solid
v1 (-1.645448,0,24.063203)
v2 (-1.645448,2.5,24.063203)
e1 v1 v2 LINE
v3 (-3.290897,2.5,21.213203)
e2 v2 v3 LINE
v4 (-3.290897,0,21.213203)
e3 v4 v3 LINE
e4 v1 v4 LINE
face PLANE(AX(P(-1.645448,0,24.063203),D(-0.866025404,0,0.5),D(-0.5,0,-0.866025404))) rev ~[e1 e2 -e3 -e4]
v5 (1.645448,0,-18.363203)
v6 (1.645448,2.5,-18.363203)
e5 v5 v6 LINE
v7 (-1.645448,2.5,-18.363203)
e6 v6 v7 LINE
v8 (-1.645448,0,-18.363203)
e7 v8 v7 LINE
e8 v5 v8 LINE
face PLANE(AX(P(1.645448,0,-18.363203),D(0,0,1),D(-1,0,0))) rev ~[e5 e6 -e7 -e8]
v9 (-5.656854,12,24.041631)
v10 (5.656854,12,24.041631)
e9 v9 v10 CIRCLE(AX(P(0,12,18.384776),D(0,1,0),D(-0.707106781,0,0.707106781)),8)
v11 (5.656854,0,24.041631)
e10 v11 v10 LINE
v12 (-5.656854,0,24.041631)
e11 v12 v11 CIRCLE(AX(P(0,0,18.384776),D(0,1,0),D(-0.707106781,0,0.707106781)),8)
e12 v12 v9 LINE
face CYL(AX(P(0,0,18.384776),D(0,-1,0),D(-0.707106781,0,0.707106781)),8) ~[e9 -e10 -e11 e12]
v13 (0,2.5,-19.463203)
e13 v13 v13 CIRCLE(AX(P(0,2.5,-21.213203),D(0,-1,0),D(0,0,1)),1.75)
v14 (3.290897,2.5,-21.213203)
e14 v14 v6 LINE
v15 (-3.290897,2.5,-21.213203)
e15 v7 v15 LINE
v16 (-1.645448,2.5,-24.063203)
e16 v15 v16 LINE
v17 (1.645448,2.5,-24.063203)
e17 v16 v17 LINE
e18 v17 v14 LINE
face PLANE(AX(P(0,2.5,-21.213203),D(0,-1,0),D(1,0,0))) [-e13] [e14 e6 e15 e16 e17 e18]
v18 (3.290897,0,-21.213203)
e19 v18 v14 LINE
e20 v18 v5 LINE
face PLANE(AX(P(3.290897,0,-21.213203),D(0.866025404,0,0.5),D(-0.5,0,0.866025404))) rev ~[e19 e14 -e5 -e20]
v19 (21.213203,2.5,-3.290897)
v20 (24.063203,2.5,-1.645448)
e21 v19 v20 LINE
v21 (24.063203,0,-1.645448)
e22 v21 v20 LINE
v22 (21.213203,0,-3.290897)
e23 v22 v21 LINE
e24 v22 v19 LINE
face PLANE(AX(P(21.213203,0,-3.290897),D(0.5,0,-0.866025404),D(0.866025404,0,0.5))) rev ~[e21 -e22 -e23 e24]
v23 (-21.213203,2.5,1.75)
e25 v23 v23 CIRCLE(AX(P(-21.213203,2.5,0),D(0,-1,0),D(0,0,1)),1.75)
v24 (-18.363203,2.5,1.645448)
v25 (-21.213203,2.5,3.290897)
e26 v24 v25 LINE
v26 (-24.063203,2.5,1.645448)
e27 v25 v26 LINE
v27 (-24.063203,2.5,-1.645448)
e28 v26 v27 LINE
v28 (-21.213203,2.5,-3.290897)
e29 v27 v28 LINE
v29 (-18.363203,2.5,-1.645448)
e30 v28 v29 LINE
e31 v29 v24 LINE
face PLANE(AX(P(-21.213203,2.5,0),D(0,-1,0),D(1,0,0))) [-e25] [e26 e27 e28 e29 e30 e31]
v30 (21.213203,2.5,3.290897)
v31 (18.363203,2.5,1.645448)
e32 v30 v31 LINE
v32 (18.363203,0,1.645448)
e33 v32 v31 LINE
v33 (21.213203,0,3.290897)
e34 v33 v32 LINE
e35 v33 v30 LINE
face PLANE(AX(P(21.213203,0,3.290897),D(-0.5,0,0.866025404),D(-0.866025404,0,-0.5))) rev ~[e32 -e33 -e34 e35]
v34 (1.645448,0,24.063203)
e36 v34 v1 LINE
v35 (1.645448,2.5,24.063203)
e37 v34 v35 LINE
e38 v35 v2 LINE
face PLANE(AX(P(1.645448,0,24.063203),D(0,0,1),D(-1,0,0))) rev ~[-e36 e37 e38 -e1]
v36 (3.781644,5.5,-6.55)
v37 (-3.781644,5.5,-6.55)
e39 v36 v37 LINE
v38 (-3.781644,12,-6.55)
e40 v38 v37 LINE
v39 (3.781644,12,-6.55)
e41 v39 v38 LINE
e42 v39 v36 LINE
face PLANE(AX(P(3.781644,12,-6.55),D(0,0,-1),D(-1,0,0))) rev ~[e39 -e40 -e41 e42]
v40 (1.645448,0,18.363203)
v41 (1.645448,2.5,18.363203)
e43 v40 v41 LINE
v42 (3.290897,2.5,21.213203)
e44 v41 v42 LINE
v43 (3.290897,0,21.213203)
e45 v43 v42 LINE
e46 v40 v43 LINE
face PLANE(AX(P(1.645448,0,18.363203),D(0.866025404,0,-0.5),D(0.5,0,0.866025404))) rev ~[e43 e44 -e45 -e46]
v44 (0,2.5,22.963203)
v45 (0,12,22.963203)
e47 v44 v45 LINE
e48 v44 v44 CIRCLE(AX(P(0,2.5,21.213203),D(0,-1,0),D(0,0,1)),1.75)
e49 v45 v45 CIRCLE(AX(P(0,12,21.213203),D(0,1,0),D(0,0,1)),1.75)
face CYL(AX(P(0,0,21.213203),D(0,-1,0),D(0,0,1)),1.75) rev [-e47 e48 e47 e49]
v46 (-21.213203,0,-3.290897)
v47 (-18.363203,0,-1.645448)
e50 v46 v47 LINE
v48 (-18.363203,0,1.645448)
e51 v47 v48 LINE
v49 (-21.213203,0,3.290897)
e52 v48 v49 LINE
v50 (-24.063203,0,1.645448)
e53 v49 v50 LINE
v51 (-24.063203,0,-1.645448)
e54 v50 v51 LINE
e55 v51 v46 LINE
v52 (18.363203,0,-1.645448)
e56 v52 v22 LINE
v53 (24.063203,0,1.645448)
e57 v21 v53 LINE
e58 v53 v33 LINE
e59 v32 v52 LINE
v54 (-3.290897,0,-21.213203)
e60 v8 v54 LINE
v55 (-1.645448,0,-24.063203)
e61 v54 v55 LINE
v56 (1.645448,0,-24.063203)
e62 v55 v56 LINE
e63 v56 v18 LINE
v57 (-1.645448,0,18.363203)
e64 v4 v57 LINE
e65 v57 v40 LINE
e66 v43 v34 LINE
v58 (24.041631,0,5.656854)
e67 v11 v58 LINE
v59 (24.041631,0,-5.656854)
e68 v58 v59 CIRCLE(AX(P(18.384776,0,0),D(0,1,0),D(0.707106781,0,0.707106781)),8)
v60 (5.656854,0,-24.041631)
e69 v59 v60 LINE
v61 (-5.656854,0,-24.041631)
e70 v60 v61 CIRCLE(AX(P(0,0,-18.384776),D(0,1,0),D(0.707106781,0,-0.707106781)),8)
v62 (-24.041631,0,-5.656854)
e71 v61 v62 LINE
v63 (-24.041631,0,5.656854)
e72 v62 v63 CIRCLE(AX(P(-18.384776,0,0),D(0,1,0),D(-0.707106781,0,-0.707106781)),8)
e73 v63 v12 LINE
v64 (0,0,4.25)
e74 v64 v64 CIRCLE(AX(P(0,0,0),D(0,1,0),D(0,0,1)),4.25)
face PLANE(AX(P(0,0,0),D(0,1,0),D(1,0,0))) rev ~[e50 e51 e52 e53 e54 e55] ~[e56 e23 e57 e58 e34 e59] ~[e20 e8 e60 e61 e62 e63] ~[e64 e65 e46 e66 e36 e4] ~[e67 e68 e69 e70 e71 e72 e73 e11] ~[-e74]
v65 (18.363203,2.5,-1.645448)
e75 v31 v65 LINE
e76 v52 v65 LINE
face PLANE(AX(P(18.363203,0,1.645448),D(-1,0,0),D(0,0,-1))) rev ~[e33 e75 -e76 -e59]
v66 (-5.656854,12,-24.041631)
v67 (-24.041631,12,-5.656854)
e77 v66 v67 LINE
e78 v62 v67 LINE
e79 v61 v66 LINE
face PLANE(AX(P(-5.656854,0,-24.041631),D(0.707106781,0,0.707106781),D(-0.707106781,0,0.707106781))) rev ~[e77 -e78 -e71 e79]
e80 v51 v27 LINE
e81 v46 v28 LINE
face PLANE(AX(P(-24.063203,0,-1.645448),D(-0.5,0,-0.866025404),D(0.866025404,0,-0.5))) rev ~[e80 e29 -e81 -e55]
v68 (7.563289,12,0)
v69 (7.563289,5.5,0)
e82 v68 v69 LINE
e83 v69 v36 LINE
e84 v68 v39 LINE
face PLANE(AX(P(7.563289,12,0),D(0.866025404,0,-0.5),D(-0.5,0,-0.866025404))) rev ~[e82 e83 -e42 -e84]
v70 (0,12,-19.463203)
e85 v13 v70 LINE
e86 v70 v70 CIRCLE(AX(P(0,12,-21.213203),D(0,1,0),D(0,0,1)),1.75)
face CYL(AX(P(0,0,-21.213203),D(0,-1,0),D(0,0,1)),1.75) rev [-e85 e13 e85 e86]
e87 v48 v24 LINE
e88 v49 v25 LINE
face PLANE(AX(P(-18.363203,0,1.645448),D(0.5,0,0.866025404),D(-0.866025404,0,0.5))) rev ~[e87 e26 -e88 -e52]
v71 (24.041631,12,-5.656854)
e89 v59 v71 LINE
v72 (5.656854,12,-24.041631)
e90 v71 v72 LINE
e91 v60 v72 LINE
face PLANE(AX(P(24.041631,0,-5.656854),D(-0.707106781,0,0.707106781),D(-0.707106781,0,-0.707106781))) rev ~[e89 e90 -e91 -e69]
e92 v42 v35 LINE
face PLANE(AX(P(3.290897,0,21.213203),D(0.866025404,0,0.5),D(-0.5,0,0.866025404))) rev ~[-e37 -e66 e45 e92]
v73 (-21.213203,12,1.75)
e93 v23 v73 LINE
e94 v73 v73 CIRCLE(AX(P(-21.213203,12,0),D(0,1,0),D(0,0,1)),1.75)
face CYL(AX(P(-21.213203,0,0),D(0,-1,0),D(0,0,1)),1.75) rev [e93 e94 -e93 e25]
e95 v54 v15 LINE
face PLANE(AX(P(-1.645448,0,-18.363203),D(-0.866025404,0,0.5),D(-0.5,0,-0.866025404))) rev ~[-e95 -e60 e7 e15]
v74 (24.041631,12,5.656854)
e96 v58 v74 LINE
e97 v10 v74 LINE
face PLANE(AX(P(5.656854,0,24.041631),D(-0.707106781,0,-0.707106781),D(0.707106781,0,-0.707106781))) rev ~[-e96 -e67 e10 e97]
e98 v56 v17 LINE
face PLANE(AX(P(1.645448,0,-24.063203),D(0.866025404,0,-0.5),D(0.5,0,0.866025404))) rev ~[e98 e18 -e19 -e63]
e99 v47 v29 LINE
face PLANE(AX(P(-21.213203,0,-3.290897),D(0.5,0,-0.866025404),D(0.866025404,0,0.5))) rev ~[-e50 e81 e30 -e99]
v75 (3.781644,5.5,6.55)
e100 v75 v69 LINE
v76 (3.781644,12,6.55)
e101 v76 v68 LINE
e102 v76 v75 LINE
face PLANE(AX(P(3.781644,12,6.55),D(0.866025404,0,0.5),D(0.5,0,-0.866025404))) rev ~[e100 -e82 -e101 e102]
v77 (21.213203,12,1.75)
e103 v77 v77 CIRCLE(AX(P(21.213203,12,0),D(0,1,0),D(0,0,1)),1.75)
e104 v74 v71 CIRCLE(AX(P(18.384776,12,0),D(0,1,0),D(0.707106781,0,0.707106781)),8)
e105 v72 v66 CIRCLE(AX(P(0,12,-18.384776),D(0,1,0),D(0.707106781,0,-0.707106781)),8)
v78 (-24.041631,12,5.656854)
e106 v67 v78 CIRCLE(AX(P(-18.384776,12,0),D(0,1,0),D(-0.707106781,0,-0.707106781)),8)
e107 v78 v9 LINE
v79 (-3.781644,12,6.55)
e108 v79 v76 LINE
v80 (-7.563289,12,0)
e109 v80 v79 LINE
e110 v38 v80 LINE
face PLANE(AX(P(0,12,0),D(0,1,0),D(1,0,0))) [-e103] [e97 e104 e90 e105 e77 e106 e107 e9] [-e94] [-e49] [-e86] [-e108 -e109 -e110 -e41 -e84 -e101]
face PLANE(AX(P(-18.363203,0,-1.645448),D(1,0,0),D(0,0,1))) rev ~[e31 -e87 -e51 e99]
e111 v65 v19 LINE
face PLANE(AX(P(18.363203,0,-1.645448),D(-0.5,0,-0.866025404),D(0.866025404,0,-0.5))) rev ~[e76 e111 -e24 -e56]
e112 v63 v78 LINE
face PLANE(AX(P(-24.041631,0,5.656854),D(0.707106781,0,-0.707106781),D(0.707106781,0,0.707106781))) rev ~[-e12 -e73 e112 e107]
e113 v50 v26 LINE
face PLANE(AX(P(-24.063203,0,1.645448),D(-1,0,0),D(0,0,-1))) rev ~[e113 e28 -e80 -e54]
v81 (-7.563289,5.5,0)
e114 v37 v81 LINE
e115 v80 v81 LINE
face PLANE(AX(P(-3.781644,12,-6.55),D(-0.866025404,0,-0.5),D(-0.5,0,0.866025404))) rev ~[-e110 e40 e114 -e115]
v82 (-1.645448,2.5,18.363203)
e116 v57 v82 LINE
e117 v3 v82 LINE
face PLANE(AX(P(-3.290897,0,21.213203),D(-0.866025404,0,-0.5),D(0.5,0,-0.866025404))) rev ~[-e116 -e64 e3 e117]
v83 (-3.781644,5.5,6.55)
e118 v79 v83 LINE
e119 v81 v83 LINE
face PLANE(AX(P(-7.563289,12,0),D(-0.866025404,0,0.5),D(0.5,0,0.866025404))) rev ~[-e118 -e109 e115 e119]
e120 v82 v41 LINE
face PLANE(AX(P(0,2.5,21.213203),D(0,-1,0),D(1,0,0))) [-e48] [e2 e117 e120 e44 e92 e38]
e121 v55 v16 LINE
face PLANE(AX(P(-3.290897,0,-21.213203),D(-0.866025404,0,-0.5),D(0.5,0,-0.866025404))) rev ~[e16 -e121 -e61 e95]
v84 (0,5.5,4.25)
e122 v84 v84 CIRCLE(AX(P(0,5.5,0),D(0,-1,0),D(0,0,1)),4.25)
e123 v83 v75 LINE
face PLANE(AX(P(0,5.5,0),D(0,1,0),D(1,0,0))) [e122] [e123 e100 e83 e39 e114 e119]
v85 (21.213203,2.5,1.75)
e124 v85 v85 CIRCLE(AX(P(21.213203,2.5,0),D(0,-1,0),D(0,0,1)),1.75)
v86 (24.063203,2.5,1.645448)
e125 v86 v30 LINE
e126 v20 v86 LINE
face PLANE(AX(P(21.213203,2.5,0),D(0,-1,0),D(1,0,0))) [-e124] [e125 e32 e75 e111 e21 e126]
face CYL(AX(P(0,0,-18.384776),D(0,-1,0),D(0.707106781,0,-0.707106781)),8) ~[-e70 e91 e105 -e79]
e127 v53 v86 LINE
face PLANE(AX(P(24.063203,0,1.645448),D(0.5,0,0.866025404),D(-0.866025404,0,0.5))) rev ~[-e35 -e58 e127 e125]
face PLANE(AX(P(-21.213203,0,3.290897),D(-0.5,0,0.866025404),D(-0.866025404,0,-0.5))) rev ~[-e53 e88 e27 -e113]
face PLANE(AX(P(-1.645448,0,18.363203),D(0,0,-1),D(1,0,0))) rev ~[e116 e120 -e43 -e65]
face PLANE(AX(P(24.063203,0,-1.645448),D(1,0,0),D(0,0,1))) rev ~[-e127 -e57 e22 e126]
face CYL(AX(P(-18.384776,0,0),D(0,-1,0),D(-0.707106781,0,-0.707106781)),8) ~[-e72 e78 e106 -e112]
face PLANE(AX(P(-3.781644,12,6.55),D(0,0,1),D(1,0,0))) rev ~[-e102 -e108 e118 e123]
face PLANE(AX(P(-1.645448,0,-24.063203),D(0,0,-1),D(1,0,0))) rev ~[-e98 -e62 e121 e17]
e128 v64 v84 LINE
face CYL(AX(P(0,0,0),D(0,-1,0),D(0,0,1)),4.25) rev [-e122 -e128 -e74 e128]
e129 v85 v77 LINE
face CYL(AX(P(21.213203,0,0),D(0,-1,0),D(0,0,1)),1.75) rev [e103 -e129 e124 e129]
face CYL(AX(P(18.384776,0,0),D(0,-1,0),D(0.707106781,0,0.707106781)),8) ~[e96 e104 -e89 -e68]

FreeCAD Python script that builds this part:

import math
import FreeCAD as App
import Part
import Sketcher

V = App.Vector
Q = App.Units.Quantity

doc = App.newDocument("Part")
params = doc.addObject("Spreadsheet::Sheet", "Params")
for row, (alias, value) in enumerate([
    ("sketch1_radius", "8 mm"),
    ("sketch1_diameter", "3.5 mm"),
    ("sketch1_diameter2", "8.5 mm"),
    ("sketch1_length", "26 mm"),
    ("pad1_length", "12 mm"),
    ("pocket1_length", "6.5 mm"),
    ("pocket2_length", "2.5 mm"),
], start=1):
    params.set(f"A{row}", alias)
    params.set(f"B{row}", "=" + value)
    params.setAlias(f"B{row}", alias)

body = doc.addObject("PartDesign::Body", "Body")

# Sketch on XZ plane
sketch1 = doc.addObject("Sketcher::SketchObject", "Sketch")
body.addObject(sketch1)
sketch1.AttachmentSupport = (doc.XZ_Plane, [""])
sketch1.MapMode = "FlatFace"
sketch1.addGeometry([
    Part.LineSegment(V(5.7, 24, 0), V(24, 5.7, 0)),  # 0
    Part.ArcOfCircle(Part.Circle(V(18.4, 0, 0), V(0, 0, 1), 8), math.radians(-45), math.radians(45)),  # 1
    Part.LineSegment(V(24, -5.7, 0), V(5.7, -24, 0)),  # 2
    Part.ArcOfCircle(Part.Circle(V(0, -18.4, 0), V(0, 0, 1), 8), math.radians(-135), math.radians(-45)),  # 3
    Part.LineSegment(V(-5.7, -24, 0), V(-24, -5.7, 0)),  # 4
    Part.ArcOfCircle(Part.Circle(V(-18.4, 0, 0), V(0, 0, 1), 8), math.radians(135), math.radians(225)),  # 5
    Part.LineSegment(V(-24, 5.7, 0), V(-5.7, 24, 0)),  # 6
    Part.ArcOfCircle(Part.Circle(V(0, 18.4, 0), V(0, 0, 1), 8), math.radians(45), math.radians(135)),  # 7
    Part.Circle(V(0, 21.2, 0), V(0, 0, 1), 1.8),  # 8
    Part.Circle(V(-21.2, 0, 0), V(0, 0, 1), 1.8),  # 9
    Part.Circle(V(0, 0, 0), V(0, 0, 1), 4.2),  # 10
    Part.Circle(V(21.2, 0, 0), V(0, 0, 1), 1.8),  # 11
    Part.Circle(V(0, -21.2, 0), V(0, 0, 1), 1.8),  # 12
], False)
sketch1.addConstraint([
    Sketcher.Constraint("Tangent", 0, 2, 1, 2),
    Sketcher.Constraint("Tangent", 1, 1, 2, 1),
    Sketcher.Constraint("Tangent", 2, 2, 3, 2),
    Sketcher.Constraint("Tangent", 3, 1, 4, 1),
    Sketcher.Constraint("Tangent", 4, 2, 5, 2),
    Sketcher.Constraint("Tangent", 5, 1, 6, 1),
    Sketcher.Constraint("Tangent", 6, 2, 7, 2),
    Sketcher.Constraint("Tangent", 7, 1, 0, 1),
    Sketcher.Constraint("Coincident", 10, 3, -1, 1),
    Sketcher.Constraint("Equal", 1, 3),
    Sketcher.Constraint("Equal", 3, 5),
    Sketcher.Constraint("Equal", 5, 7),
    Sketcher.Constraint("Equal", 8, 9),
    Sketcher.Constraint("Equal", 9, 11),
    Sketcher.Constraint("Equal", 11, 12),
    Sketcher.Constraint("Symmetric", 1, 3, 5, 3, -1, 1),
    Sketcher.Constraint("Symmetric", 3, 3, 7, 3, -1, 1),
    Sketcher.Constraint("Symmetric", 9, 3, 11, 3, -1, 1),
    Sketcher.Constraint("Symmetric", 8, 3, 12, 3, -1, 1),
    Sketcher.Constraint("Symmetric", 2, 2, 3, 1, -2),
    Sketcher.Constraint("PointOnObject", 8, 3, -2),
    Sketcher.Constraint("PointOnObject", 9, 3, -1),
    Sketcher.Constraint("Perpendicular", 0, 2),
    Sketcher.Constraint("Radius", 1, Q("8 mm")),
    Sketcher.Constraint("Diameter", 8, Q("3.5 mm")),
    Sketcher.Constraint("Diameter", 10, Q("8.5 mm")),
    Sketcher.Constraint("Distance", 0, Q("26 mm")),
    Sketcher.Constraint("DistanceY", 3, 3, 8, 3, Q("39.59798 mm")),
    Sketcher.Constraint("DistanceX", 9, 3, 1, 3, Q("39.59798 mm")),
])
sketch1.setExpression("Constraints[23]", "Params.sketch1_radius")
sketch1.setExpression("Constraints[24]", "Params.sketch1_diameter")
sketch1.setExpression("Constraints[25]", "Params.sketch1_diameter2")
sketch1.setExpression("Constraints[26]", "Params.sketch1_length")
pad1 = doc.addObject("PartDesign::Pad", "Pad")
body.addObject(pad1)
pad1.Profile = sketch1
pad1.setExpression("Length", "Params.pad1_length")
pad1.Reversed = True

# Sketch on XZ plane
sketch2 = doc.addObject("Sketcher::SketchObject", "Sketch001")
body.addObject(sketch2)
sketch2.AttachmentSupport = (doc.XZ_Plane, [""])
sketch2.MapMode = "FlatFace"
sketch2.AttachmentOffset = App.Placement(V(0, 0, -12), App.Rotation())
sketch2.addGeometry([
    Part.LineSegment(V(4, 7, 0), V(8, 0, 0)),  # 0
    Part.LineSegment(V(8, 0, 0), V(4, -7, 0)),  # 1
    Part.LineSegment(V(4, -7, 0), V(-4, -7, 0)),  # 2
    Part.LineSegment(V(-4, -7, 0), V(-8, 0, 0)),  # 3
    Part.LineSegment(V(-8, 0, 0), V(-4, 7, 0)),  # 4
    Part.LineSegment(V(-4, 7, 0), V(4, 7, 0)),  # 5
], False)
sketch2.addConstraint([
    Sketcher.Constraint("Coincident", 0, 2, 1, 1),
    Sketcher.Constraint("Coincident", 1, 2, 2, 1),
    Sketcher.Constraint("Coincident", 2, 2, 3, 1),
    Sketcher.Constraint("Coincident", 3, 2, 4, 1),
    Sketcher.Constraint("Coincident", 4, 2, 5, 1),
    Sketcher.Constraint("Coincident", 5, 2, 0, 1),
    Sketcher.Constraint("Horizontal", 2),
    Sketcher.Constraint("Horizontal", 5),
    Sketcher.Constraint("Symmetric", 0, 2, 3, 2, -1, 1),
    Sketcher.Constraint("Symmetric", 1, 2, 4, 2, -1, 1),
    Sketcher.Constraint("PointOnObject", 0, 2, -1),
    Sketcher.Constraint("Parallel", 0, 3),
    Sketcher.Constraint("Vertical", 2, 2, 4, 2),
    Sketcher.Constraint("Angle", 0, Q("-60 deg")),
    Sketcher.Constraint("DistanceY", 2, 2, 4, 2, Q("13.1 mm")),
    Sketcher.Constraint("DistanceX", 2, 2, 2, 1, Q("7.563289 mm")),
])
pocket1 = doc.addObject("PartDesign::Pocket", "Pocket")
body.addObject(pocket1)
pocket1.Profile = sketch2
pocket1.setExpression("Length", "Params.pocket1_length")
pocket1.Reversed = True

# Sketch on XZ plane
sketch3 = doc.addObject("Sketcher::SketchObject", "Sketch002")
body.addObject(sketch3)
sketch3.AttachmentSupport = (doc.XZ_Plane, [""])
sketch3.MapMode = "FlatFace"
sketch3.addGeometry([
    Part.LineSegment(V(24.1, -1.6, 0), V(24.1, 1.6, 0)),  # 0
    Part.LineSegment(V(24.1, 1.6, 0), V(21.2, 3.3, 0)),  # 1
    Part.LineSegment(V(21.2, 3.3, 0), V(18.4, 1.6, 0)),  # 2
    Part.LineSegment(V(18.4, 1.6, 0), V(18.4, -1.6, 0)),  # 3
    Part.LineSegment(V(18.4, -1.6, 0), V(21.2, -3.3, 0)),  # 4
    Part.LineSegment(V(21.2, -3.3, 0), V(24.1, -1.6, 0)),  # 5
    Part.LineSegment(V(-1.6, 18.4, 0), V(1.6, 18.4, 0)),  # 6
    Part.LineSegment(V(1.6, 18.4, 0), V(3.3, 21.2, 0)),  # 7
    Part.LineSegment(V(3.3, 21.2, 0), V(1.6, 24.1, 0)),  # 8
    Part.LineSegment(V(1.6, 24.1, 0), V(-1.6, 24.1, 0)),  # 9
    Part.LineSegment(V(-1.6, 24.1, 0), V(-3.3, 21.2, 0)),  # 10
    Part.LineSegment(V(-3.3, 21.2, 0), V(-1.6, 18.4, 0)),  # 11
    Part.LineSegment(V(-1.6, -24.1, 0), V(1.6, -24.1, 0)),  # 12
    Part.LineSegment(V(1.6, -24.1, 0), V(3.3, -21.2, 0)),  # 13
    Part.LineSegment(V(3.3, -21.2, 0), V(1.6, -18.4, 0)),  # 14
    Part.LineSegment(V(1.6, -18.4, 0), V(-1.6, -18.4, 0)),  # 15
    Part.LineSegment(V(-1.6, -18.4, 0), V(-3.3, -21.2, 0)),  # 16
    Part.LineSegment(V(-3.3, -21.2, 0), V(-1.6, -24.1, 0)),  # 17
    Part.LineSegment(V(-24.1, 1.6, 0), V(-24.1, -1.6, 0)),  # 18
    Part.LineSegment(V(-24.1, -1.6, 0), V(-21.2, -3.3, 0)),  # 19
    Part.LineSegment(V(-21.2, -3.3, 0), V(-18.4, -1.6, 0)),  # 20
    Part.LineSegment(V(-18.4, -1.6, 0), V(-18.4, 1.6, 0)),  # 21
    Part.LineSegment(V(-18.4, 1.6, 0), V(-21.2, 3.3, 0)),  # 22
    Part.LineSegment(V(-21.2, 3.3, 0), V(-24.1, 1.6, 0)),  # 23
], False)
sketch3.addConstraint([
    Sketcher.Constraint("Coincident", 0, 2, 1, 1),
    Sketcher.Constraint("Coincident", 1, 2, 2, 1),
    Sketcher.Constraint("Coincident", 2, 2, 3, 1),
    Sketcher.Constraint("Coincident", 3, 2, 4, 1),
    Sketcher.Constraint("Coincident", 4, 2, 5, 1),
    Sketcher.Constraint("Coincident", 5, 2, 0, 1),
    Sketcher.Constraint("Coincident", 6, 2, 7, 1),
    Sketcher.Constraint("Coincident", 7, 2, 8, 1),
    Sketcher.Constraint("Coincident", 8, 2, 9, 1),
    Sketcher.Constraint("Coincident", 9, 2, 10, 1),
    Sketcher.Constraint("Coincident", 10, 2, 11, 1),
    Sketcher.Constraint("Coincident", 11, 2, 6, 1),
    Sketcher.Constraint("Coincident", 12, 2, 13, 1),
    Sketcher.Constraint("Coincident", 13, 2, 14, 1),
    Sketcher.Constraint("Coincident", 14, 2, 15, 1),
    Sketcher.Constraint("Coincident", 15, 2, 16, 1),
    Sketcher.Constraint("Coincident", 16, 2, 17, 1),
    Sketcher.Constraint("Coincident", 17, 2, 12, 1),
    Sketcher.Constraint("Coincident", 18, 2, 19, 1),
    Sketcher.Constraint("Coincident", 19, 2, 20, 1),
    Sketcher.Constraint("Coincident", 20, 2, 21, 1),
    Sketcher.Constraint("Coincident", 21, 2, 22, 1),
    Sketcher.Constraint("Coincident", 22, 2, 23, 1),
    Sketcher.Constraint("Coincident", 23, 2, 18, 1),
    Sketcher.Constraint("Vertical", 0),
    Sketcher.Constraint("Vertical", 3),
    Sketcher.Constraint("Horizontal", 6),
    Sketcher.Constraint("Horizontal", 9),
    Sketcher.Constraint("Horizontal", 12),
    Sketcher.Constraint("Horizontal", 15),
    Sketcher.Constraint("Vertical", 18),
    Sketcher.Constraint("Vertical", 21),
    Sketcher.Constraint("Symmetric", 9, 2, 12, 2, -1, 1),
    Sketcher.Constraint("Symmetric", 10, 2, 13, 2, -1, 1),
    Sketcher.Constraint("Symmetric", 11, 2, 14, 2, -1, 1),
    Sketcher.Constraint("Symmetric", 7, 2, 16, 2, -1, 1),
    Sketcher.Constraint("Symmetric", 0, 2, 18, 2, -1, 1),
    Sketcher.Constraint("Symmetric", 1, 2, 19, 2, -1, 1),
    Sketcher.Constraint("Symmetric", 2, 2, 20, 2, -1, 1),
    Sketcher.Constraint("Symmetric", 4, 2, 22, 2, -1, 1),
    Sketcher.Constraint("Symmetric", 7, 2, 10, 2, -2),
    Sketcher.Constraint("Symmetric", 4, 2, 19, 2, -2),
    Sketcher.Constraint("Parallel", 1, 4),
    Sketcher.Constraint("Parallel", 2, 5),
    Sketcher.Constraint("Perpendicular", 4, 7),
    Sketcher.Constraint("Perpendicular", 5, 8),
    Sketcher.Constraint("Parallel", 7, 10),
    Sketcher.Constraint("Parallel", 8, 11),
    Sketcher.Constraint("Parallel", 13, 16),
    Sketcher.Constraint("Parallel", 14, 17),
    Sketcher.Constraint("Parallel", 19, 22),
    Sketcher.Constraint("Parallel", 20, 23),
    Sketcher.Constraint("Horizontal", 0, 2, 2, 2),
    Sketcher.Constraint("Horizontal", 3, 2, 5, 2),
    Sketcher.Constraint("Vertical", 6, 2, 8, 2),
    Sketcher.Constraint("Equal", 15, 0),
    Sketcher.Constraint("Equal", 5, 7),
    Sketcher.Constraint("Angle", 1, Q("150 deg")),
    Sketcher.Constraint("DistanceX", 2, 2, 0, 2, Q("5.7 mm")),
    Sketcher.Constraint("DistanceY", 4, 2, 6, 2, Q("21.6541 mm")),
    Sketcher.Constraint("DistanceX", 10, 2, 2, 2, Q("21.6541 mm")),
    Sketcher.Constraint("DistanceX", 6, 1, 6, 2, Q("3.290897 mm")),
])
pocket2 = doc.addObject("PartDesign::Pocket", "Pocket001")
body.addObject(pocket2)
pocket2.Profile = sketch3
pocket2.setExpression("Length", "Params.pocket2_length")

doc.recompute()
